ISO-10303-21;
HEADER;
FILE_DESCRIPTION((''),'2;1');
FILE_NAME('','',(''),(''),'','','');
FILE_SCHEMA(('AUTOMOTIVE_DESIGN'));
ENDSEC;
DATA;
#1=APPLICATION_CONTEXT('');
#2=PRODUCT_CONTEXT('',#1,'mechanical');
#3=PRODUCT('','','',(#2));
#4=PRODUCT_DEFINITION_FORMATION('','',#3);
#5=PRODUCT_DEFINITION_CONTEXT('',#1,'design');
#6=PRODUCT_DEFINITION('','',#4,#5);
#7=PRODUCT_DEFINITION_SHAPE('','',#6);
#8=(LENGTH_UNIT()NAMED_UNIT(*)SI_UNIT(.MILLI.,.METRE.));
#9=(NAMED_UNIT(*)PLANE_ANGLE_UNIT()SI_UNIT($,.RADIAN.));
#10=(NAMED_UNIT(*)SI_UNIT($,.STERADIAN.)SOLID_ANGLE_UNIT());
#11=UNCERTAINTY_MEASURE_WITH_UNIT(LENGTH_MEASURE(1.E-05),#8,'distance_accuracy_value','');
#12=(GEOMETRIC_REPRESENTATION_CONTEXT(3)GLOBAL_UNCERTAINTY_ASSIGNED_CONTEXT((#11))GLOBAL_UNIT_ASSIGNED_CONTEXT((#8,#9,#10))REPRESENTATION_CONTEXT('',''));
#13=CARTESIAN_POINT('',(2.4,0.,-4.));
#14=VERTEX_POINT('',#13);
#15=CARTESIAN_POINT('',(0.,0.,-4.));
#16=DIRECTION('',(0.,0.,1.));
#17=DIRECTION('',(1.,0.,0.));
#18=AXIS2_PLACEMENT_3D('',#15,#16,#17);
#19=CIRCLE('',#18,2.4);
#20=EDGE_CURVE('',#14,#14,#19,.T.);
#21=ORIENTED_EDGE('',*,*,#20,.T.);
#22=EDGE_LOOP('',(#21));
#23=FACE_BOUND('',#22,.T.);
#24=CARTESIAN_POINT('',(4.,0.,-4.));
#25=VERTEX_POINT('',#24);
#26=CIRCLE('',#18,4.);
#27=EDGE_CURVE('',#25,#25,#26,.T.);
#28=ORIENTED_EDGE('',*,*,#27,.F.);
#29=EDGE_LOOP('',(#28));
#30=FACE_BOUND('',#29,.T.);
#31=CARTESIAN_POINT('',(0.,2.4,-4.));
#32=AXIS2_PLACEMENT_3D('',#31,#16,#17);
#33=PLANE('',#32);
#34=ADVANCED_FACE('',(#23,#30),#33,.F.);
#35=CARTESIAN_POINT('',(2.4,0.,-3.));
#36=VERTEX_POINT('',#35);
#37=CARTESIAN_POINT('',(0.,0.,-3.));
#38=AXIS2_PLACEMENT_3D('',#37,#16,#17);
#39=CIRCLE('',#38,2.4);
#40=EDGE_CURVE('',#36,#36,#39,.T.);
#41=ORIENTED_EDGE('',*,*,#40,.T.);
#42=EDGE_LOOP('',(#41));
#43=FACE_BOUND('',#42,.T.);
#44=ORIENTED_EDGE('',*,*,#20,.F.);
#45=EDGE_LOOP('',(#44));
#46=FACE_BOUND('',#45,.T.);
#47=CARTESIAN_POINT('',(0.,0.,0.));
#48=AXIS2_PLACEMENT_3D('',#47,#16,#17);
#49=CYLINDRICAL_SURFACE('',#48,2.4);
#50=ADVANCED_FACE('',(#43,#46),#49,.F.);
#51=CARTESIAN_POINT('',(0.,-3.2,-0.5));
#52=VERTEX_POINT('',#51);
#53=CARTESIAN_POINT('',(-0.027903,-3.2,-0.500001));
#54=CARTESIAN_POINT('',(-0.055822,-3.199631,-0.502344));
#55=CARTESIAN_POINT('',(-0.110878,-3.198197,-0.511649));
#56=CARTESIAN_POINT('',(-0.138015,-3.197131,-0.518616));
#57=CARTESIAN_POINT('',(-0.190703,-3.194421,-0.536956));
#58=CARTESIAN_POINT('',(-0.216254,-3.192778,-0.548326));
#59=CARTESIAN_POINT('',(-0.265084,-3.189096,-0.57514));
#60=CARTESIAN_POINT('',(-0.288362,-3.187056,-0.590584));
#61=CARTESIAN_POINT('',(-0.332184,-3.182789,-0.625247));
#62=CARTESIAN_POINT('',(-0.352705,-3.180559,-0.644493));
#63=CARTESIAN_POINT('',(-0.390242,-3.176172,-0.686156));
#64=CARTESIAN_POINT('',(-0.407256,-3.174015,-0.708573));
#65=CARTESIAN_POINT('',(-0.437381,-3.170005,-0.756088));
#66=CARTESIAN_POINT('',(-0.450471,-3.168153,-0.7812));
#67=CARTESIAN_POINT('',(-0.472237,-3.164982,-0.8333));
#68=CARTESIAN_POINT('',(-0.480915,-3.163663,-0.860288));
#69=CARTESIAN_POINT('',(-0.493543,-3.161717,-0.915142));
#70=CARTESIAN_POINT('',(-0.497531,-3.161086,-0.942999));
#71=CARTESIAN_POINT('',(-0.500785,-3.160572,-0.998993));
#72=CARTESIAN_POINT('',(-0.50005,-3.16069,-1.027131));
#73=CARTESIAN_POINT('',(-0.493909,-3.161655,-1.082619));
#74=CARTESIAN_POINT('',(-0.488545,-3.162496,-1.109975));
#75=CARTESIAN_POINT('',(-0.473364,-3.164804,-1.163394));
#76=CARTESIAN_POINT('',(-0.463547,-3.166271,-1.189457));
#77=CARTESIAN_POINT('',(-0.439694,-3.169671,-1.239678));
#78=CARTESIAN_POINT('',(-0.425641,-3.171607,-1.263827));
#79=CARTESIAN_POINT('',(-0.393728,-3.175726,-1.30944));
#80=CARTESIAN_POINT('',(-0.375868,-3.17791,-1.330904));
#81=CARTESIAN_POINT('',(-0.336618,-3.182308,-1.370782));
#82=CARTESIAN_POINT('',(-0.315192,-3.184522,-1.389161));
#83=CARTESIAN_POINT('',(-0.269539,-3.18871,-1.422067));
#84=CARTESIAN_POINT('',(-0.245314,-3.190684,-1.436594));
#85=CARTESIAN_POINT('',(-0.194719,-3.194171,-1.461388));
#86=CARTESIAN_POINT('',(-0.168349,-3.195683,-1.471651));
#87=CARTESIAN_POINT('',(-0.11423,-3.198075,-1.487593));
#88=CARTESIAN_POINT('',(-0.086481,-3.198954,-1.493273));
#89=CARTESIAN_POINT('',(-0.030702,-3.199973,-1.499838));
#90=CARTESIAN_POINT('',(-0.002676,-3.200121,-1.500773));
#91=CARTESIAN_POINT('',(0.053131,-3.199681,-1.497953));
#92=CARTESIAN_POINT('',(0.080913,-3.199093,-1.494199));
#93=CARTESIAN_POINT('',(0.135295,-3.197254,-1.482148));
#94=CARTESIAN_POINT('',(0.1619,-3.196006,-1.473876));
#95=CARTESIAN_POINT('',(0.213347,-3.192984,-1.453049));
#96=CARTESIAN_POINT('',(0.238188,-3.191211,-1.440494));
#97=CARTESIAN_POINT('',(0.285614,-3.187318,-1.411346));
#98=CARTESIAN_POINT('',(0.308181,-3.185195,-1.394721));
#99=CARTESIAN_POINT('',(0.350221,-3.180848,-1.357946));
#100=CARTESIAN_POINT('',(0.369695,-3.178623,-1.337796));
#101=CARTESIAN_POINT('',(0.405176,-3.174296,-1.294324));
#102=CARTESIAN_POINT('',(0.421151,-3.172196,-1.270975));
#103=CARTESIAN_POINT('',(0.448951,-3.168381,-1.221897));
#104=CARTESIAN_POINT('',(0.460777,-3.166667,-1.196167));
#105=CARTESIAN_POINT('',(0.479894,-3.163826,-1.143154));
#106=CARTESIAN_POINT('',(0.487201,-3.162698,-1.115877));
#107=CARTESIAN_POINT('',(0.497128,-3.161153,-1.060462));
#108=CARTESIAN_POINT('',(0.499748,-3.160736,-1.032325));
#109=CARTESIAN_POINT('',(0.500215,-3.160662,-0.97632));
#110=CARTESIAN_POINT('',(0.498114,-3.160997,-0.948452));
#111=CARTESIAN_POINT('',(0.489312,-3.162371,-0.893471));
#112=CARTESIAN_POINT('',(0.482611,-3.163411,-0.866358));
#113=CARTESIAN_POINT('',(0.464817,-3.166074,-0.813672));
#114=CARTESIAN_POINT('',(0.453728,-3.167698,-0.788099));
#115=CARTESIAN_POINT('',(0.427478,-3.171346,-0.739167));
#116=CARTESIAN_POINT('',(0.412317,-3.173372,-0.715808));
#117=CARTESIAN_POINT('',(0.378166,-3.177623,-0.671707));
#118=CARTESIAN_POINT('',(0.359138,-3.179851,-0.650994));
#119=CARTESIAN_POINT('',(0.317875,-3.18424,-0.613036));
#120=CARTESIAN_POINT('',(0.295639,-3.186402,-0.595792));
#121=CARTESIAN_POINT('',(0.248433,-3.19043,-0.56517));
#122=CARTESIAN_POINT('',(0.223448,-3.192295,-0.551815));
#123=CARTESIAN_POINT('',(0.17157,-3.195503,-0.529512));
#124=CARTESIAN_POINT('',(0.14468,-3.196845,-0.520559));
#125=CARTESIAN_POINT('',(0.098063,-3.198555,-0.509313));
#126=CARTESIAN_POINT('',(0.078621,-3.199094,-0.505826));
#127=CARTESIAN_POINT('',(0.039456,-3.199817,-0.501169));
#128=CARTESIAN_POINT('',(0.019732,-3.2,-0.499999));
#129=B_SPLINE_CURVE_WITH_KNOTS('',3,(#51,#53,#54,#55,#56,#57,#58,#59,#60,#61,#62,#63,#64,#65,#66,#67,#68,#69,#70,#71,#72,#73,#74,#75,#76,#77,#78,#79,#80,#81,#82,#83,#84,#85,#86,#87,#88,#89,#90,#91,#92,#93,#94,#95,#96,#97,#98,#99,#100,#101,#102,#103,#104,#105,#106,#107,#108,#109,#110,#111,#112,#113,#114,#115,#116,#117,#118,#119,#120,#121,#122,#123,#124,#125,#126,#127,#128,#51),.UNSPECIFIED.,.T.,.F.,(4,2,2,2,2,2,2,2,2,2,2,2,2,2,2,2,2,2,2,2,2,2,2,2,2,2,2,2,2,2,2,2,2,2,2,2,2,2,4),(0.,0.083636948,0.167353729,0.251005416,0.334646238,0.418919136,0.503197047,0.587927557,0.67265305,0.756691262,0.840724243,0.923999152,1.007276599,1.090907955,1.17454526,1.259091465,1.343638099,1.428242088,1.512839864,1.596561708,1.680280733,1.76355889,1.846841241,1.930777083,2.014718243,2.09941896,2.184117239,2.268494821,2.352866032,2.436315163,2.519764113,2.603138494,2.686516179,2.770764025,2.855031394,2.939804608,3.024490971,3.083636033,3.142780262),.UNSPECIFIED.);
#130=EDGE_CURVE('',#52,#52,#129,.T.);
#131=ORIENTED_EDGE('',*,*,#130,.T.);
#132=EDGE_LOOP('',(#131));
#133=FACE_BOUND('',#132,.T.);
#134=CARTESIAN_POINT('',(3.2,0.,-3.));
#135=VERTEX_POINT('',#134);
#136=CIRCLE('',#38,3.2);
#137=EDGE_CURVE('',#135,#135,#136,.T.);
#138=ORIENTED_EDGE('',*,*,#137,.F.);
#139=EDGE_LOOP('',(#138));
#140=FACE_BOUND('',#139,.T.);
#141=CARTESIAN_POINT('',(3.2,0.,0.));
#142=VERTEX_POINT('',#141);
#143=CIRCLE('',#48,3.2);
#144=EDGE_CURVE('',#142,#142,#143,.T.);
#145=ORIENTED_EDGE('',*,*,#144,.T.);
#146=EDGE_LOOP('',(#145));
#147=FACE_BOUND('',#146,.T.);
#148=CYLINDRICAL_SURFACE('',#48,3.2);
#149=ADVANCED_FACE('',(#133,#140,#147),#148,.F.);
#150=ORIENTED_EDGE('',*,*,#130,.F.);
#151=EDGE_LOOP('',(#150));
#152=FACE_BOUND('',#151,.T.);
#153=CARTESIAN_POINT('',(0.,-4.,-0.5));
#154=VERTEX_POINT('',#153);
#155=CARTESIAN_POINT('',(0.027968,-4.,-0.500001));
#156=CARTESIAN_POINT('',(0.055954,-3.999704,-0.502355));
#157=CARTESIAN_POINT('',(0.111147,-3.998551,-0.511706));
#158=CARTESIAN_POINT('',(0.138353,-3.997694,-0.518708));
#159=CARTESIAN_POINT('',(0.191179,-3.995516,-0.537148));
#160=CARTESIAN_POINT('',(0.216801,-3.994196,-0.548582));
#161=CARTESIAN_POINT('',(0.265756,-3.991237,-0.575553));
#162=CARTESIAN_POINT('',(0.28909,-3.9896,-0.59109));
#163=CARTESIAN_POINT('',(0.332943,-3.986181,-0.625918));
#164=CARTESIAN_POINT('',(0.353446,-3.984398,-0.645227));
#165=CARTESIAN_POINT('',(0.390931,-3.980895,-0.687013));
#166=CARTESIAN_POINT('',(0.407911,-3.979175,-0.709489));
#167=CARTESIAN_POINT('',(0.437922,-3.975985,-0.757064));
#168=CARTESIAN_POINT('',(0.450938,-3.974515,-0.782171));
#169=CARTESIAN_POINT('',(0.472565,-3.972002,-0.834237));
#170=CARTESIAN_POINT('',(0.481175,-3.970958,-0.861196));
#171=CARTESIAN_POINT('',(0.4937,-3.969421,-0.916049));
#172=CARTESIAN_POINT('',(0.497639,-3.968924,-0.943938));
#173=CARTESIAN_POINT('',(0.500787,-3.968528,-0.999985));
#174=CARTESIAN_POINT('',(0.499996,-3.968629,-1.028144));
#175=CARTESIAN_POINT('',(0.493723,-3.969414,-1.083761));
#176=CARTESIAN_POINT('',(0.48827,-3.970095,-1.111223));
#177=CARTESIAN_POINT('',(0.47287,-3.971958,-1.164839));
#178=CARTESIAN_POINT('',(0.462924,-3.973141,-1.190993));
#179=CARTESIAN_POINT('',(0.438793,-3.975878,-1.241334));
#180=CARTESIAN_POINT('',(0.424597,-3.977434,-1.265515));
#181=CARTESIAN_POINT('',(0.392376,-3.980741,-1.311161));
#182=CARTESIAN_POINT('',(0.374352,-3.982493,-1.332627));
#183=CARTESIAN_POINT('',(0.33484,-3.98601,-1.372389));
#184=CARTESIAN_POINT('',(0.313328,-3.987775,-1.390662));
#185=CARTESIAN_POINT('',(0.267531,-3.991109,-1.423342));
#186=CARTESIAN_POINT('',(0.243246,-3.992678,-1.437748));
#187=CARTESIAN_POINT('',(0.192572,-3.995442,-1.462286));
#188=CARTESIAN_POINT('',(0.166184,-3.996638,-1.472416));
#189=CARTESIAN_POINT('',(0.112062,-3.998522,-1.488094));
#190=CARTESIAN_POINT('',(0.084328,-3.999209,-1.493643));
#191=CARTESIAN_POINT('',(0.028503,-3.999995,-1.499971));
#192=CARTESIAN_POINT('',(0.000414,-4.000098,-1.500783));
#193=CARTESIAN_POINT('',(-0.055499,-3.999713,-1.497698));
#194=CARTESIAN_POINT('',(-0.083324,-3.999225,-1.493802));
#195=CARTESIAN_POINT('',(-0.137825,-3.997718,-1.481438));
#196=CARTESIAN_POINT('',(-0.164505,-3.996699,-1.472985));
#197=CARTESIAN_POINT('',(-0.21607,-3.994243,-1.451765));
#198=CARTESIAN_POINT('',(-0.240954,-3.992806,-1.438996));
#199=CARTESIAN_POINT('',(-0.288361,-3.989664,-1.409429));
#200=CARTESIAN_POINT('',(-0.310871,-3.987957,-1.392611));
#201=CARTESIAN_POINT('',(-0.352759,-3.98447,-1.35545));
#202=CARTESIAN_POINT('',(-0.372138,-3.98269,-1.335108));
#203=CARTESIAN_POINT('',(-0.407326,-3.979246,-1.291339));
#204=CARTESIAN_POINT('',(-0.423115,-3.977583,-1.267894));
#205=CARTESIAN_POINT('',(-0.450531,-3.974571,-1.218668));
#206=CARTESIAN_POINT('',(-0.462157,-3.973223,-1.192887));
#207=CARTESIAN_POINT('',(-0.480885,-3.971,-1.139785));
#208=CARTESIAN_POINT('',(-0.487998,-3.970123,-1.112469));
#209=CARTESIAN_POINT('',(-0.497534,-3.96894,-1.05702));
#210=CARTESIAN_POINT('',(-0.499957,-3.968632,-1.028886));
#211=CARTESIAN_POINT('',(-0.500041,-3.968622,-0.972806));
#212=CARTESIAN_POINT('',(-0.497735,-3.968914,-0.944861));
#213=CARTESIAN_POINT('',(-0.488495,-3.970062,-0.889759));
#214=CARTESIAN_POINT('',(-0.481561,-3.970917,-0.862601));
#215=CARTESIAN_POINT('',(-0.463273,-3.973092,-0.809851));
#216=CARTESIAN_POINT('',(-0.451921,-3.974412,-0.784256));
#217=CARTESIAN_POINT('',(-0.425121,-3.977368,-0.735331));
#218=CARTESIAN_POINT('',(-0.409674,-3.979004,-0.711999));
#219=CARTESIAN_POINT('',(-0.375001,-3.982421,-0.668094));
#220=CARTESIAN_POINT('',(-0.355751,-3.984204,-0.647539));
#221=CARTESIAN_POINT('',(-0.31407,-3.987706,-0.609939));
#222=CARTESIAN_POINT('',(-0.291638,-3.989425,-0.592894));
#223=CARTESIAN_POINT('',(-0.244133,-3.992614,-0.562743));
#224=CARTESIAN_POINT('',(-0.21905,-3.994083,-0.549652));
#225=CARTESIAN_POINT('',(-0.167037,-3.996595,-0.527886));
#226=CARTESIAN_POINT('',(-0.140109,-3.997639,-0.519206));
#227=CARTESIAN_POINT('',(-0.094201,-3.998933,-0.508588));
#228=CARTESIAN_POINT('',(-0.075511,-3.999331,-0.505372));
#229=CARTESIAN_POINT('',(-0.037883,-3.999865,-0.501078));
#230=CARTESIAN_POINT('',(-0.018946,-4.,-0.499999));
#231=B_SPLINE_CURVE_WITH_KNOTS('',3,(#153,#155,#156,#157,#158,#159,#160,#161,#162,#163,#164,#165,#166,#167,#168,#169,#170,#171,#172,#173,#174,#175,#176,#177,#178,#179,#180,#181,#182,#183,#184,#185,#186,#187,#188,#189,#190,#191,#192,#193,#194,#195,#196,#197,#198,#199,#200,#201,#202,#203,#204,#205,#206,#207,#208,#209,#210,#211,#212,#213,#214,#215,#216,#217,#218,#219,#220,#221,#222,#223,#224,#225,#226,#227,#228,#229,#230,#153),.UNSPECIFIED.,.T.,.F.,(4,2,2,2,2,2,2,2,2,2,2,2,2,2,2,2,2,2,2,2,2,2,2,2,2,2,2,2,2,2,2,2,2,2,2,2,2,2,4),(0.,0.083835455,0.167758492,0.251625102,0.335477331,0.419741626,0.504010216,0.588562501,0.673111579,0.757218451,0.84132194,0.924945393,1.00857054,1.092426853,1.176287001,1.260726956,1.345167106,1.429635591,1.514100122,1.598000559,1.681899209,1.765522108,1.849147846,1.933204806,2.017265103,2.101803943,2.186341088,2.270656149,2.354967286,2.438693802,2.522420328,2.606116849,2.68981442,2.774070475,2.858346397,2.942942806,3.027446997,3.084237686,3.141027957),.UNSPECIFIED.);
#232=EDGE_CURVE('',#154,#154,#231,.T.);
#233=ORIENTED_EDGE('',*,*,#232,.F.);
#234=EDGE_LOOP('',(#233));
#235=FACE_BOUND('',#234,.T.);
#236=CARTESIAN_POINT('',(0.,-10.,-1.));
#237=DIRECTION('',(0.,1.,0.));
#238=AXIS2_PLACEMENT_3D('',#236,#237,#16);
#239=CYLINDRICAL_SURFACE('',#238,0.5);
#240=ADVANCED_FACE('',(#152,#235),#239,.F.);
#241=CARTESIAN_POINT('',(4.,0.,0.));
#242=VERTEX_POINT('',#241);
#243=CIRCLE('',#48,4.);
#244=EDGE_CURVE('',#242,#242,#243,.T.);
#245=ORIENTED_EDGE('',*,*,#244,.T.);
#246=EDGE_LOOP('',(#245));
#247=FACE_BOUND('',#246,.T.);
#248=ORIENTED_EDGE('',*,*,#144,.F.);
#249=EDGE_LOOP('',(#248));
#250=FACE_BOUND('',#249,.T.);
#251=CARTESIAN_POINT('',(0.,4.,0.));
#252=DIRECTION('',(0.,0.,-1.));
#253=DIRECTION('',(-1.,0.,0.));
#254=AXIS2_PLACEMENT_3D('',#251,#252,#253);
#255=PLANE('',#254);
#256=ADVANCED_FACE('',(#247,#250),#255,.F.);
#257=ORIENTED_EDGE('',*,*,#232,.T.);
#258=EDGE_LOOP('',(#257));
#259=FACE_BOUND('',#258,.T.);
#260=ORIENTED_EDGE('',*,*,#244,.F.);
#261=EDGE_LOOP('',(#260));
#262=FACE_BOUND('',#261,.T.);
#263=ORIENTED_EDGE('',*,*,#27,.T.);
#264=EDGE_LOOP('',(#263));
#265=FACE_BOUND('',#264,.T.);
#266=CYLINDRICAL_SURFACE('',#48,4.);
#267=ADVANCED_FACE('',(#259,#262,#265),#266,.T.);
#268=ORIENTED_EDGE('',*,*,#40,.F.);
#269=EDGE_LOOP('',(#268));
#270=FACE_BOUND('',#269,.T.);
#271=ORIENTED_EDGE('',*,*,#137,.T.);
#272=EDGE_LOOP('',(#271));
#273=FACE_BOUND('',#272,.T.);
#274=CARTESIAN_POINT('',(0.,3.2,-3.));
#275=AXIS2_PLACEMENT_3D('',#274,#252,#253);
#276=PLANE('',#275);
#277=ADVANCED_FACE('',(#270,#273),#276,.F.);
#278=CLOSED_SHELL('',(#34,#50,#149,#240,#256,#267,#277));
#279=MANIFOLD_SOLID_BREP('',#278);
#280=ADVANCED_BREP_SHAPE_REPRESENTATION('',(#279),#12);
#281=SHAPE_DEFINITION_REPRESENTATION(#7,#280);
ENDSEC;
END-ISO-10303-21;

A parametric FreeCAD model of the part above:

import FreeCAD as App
import Part
import Sketcher

doc = App.newDocument("Part")
body = doc.addObject("PartDesign::Body", "Body")

# Sketch on YZ plane
sketch1 = body.newObject("Sketcher::SketchObject", "Sketch")
sketch1.AttachmentSupport = (doc.getObject("YZ_Plane"), [""])
sketch1.MapMode = "FlatFace"
sketch1.addGeometry([
    Part.LineSegment(App.Vector(3.2, 0, 0), App.Vector(3.2, -3, 0)),  # 0
    Part.LineSegment(App.Vector(3.2, -3, 0), App.Vector(2.4, -3, 0)),  # 1
    Part.LineSegment(App.Vector(2.4, -3, 0), App.Vector(2.4, -4, 0)),  # 2
    Part.LineSegment(App.Vector(2.4, -4, 0), App.Vector(4, -4, 0)),  # 3
    Part.LineSegment(App.Vector(4, -4, 0), App.Vector(4, 0, 0)),  # 4
    Part.LineSegment(App.Vector(4, 0, 0), App.Vector(3.2, 0, 0)),  # 5
], False)
sketch1.addConstraint([
    Sketcher.Constraint("Coincident", 0, 2, 1, 1),
    Sketcher.Constraint("Coincident", 1, 2, 2, 1),
    Sketcher.Constraint("Coincident", 2, 2, 3, 1),
    Sketcher.Constraint("Coincident", 3, 2, 4, 1),
    Sketcher.Constraint("Coincident", 4, 2, 5, 1),
    Sketcher.Constraint("Coincident", 5, 2, 0, 1),
    Sketcher.Constraint("Vertical", 0),
    Sketcher.Constraint("Horizontal", 1),
    Sketcher.Constraint("Vertical", 2),
    Sketcher.Constraint("Horizontal", 3),
    Sketcher.Constraint("Vertical", 4),
    Sketcher.Constraint("Horizontal", 5),
    Sketcher.Constraint("PointOnObject", 4, 2, -1),
    Sketcher.Constraint("Equal", 1, 5),
    Sketcher.Constraint("DistanceY", 0, 2, 0, 1, 3.0),
    Sketcher.Constraint("DistanceY", 2, 2, 2, 1, 1.0),
    Sketcher.Constraint("DistanceX", 1, 2, 1, 1, 0.8),
    Sketcher.Constraint("DistanceX", -1, 1, 3, 2, 4.0),
])
revolution = body.newObject("PartDesign::Revolution", "Revolution")
revolution.Profile = sketch1
revolution.ReferenceAxis = (sketch1, ["V_Axis"])
revolution.Angle = 360

# Sketch on XZ plane
sketch2 = body.newObject("Sketcher::SketchObject", "Sketch001")
sketch2.AttachmentSupport = (doc.getObject("XZ_Plane"), [""])
sketch2.MapMode = "FlatFace"
sketch2.addGeometry(Part.Circle(App.Vector(0, -1, 0), App.Vector(0, 0, 1), 0.5), False)
sketch2.addConstraint([
    Sketcher.Constraint("PointOnObject", 0, 3, -2),
    Sketcher.Constraint("Diameter", 0, 1.0),
    Sketcher.Constraint("DistanceY", 0, 3, -1, 1, 1.0),
])
pocket1 = body.newObject("PartDesign::Pocket", "Pocket")
pocket1.Profile = sketch2
pocket1.Length = 10
pocket1.Reversed = True

doc.recompute()
